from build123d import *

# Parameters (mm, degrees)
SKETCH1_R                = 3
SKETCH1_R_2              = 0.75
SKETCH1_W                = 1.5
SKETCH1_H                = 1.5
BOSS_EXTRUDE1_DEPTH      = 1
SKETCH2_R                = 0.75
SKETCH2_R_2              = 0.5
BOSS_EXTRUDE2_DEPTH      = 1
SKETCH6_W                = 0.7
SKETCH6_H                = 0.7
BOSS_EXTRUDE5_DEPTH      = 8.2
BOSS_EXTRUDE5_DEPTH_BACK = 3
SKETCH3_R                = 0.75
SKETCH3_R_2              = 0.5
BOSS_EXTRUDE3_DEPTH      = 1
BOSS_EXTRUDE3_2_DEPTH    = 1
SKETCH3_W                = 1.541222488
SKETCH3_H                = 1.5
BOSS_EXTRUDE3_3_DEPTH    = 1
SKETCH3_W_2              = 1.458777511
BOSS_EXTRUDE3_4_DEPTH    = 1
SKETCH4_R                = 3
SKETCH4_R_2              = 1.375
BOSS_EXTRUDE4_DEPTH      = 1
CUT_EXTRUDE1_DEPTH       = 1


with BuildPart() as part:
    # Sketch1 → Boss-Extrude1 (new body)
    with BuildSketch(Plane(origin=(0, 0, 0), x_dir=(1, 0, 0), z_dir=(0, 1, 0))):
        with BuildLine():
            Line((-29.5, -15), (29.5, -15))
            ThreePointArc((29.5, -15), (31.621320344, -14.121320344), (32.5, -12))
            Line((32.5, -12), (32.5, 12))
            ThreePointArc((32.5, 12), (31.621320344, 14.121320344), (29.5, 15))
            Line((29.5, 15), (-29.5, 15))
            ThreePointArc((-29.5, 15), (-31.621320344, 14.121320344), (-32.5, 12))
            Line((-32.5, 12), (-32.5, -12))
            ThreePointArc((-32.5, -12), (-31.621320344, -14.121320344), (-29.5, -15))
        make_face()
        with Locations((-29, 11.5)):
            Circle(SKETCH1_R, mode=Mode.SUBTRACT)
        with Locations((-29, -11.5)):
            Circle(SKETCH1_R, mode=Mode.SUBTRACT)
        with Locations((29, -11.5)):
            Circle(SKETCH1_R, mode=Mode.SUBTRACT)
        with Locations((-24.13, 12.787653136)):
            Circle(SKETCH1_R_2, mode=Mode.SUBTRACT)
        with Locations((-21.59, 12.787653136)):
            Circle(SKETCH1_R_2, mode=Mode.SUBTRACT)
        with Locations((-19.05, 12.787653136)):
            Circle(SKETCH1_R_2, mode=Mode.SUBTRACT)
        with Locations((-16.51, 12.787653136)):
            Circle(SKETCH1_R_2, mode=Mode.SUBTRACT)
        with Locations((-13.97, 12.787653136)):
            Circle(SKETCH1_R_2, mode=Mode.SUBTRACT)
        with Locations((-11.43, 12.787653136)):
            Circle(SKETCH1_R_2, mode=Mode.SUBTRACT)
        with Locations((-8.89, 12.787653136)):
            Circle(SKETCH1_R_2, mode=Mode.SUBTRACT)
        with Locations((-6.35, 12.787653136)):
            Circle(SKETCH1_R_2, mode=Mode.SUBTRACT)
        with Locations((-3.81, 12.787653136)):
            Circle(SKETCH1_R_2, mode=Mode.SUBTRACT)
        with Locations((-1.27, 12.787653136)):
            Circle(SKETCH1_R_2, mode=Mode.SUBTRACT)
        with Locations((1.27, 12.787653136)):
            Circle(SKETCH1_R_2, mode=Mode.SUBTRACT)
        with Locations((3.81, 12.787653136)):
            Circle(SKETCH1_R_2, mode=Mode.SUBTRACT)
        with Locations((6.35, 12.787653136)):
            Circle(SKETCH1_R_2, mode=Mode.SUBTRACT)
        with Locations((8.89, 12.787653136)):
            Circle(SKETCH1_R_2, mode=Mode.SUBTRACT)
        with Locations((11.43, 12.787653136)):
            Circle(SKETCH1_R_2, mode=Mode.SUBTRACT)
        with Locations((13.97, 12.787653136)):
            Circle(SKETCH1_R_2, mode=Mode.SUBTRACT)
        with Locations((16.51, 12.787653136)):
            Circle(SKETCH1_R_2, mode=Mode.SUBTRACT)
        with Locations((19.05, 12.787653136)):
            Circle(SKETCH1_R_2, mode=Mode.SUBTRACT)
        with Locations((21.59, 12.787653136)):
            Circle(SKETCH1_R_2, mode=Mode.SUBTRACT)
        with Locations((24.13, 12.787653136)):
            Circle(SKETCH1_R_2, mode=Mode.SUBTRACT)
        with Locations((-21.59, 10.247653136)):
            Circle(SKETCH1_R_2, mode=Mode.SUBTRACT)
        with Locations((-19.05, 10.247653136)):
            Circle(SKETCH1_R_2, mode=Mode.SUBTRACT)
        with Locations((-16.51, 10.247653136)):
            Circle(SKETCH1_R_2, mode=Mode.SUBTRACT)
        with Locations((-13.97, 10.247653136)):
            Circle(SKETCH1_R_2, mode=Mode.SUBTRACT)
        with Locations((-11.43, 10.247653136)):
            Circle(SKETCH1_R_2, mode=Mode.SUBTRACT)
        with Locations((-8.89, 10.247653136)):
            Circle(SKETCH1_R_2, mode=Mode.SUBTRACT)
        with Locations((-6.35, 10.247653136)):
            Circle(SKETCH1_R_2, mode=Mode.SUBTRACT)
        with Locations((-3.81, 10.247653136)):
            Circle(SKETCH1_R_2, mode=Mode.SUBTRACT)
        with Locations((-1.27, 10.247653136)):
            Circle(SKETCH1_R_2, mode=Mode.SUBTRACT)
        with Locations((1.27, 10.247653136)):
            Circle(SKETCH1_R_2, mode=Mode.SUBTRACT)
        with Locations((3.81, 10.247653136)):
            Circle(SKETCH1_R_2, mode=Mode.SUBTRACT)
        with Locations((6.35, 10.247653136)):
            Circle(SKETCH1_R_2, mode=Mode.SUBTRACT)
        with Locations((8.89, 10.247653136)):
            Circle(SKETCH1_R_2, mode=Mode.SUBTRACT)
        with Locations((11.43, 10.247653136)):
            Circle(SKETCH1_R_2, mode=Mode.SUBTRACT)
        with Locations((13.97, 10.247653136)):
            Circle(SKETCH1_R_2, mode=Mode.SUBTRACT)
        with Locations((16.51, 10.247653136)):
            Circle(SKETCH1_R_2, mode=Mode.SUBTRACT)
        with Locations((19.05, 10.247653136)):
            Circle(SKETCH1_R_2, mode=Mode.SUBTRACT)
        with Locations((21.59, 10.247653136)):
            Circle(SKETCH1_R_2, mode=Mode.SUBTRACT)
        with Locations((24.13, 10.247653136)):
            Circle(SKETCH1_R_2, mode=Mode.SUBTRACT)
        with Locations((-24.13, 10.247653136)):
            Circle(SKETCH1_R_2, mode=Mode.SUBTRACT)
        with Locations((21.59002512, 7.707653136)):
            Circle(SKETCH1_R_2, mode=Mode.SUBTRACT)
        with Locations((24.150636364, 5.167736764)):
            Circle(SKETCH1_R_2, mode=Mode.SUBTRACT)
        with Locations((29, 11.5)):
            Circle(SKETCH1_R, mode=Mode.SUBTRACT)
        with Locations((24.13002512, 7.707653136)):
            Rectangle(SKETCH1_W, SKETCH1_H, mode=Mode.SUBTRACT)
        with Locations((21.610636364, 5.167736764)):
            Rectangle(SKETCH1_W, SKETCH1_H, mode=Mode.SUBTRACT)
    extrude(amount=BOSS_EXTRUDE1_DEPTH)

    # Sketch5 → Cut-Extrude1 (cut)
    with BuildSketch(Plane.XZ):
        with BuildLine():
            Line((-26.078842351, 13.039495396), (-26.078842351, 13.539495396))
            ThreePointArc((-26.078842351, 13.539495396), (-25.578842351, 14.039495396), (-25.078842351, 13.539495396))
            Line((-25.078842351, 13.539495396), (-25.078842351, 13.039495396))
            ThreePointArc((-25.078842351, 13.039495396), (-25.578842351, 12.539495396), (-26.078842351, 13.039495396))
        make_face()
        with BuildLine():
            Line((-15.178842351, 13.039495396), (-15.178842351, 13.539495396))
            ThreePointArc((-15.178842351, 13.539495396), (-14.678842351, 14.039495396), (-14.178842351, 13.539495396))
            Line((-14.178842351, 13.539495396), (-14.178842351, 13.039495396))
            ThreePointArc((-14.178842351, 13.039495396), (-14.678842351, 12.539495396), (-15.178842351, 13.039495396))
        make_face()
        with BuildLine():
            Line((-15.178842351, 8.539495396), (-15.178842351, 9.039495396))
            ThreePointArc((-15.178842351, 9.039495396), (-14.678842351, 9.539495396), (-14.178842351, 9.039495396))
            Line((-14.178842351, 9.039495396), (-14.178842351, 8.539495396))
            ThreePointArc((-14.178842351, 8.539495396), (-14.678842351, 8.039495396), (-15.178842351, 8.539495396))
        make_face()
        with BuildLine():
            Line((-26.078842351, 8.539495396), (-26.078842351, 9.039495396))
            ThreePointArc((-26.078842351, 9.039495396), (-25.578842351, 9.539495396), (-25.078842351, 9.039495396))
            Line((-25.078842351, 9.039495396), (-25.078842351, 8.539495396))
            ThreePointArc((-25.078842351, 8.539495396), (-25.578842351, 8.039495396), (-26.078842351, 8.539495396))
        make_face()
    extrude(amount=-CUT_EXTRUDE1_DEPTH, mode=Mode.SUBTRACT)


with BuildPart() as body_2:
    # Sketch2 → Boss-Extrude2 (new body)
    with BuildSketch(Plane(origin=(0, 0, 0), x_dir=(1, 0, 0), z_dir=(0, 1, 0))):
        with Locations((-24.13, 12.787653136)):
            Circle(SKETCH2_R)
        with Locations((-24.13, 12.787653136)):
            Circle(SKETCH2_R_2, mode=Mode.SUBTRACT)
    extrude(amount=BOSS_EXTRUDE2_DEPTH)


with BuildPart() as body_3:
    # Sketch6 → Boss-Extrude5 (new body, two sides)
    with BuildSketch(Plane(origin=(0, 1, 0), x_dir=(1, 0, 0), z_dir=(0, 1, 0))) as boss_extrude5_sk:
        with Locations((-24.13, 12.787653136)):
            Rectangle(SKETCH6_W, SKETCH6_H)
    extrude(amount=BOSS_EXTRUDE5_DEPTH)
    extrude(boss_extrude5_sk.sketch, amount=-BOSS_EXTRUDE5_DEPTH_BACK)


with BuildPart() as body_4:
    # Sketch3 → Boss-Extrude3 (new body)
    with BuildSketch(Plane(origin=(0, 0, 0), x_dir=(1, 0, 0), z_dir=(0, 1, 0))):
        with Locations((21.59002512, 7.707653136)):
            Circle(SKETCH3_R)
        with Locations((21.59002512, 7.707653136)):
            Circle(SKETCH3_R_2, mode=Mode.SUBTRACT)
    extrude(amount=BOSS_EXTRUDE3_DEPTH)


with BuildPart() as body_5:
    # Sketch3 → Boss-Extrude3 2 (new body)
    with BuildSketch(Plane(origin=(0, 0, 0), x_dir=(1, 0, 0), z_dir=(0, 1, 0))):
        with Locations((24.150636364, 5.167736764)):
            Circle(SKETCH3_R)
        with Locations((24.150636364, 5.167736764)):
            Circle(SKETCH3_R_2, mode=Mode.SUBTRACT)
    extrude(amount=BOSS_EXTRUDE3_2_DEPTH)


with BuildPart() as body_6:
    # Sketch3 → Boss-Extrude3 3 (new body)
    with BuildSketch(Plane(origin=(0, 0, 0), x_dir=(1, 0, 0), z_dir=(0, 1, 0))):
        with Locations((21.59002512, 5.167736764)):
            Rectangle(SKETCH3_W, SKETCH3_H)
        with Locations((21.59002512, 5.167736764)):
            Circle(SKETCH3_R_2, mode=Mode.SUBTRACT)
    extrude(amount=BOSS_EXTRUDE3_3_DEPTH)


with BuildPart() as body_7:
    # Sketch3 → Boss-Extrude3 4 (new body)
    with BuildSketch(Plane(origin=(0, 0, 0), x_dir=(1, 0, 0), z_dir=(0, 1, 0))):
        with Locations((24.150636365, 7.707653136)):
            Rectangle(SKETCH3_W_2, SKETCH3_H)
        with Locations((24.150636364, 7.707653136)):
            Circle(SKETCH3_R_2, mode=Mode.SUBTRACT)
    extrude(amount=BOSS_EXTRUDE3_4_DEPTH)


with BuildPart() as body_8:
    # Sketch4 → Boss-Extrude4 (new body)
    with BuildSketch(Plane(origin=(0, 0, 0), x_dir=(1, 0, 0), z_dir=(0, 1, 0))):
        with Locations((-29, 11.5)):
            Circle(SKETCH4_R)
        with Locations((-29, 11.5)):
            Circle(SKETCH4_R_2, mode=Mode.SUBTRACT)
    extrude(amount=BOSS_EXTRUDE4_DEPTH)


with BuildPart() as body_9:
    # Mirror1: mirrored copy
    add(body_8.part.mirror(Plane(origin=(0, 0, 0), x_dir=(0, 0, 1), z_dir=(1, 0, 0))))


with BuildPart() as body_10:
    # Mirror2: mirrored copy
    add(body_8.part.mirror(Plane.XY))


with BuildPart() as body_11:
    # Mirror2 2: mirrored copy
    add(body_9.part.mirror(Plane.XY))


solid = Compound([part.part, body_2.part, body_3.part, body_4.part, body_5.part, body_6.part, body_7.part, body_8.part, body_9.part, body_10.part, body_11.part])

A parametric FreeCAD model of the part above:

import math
import FreeCAD as App
import Part
import Sketcher
Q = App.Units.Quantity

doc = App.newDocument("Part")
body = doc.addObject("PartDesign::Body", "Body")

# Sketch on XZ plane
sketch1 = body.newObject("Sketcher::SketchObject", "Sketch")
sketch1.AttachmentSupport = (doc.getObject("XZ_Plane"), [""])
sketch1.MapMode = "FlatFace"
sketch1.addGeometry(Part.LineSegment(App.Vector(-29.5, 15, 0), App.Vector(29.5, 15, 0)), False)
sketch1.addGeometry(Part.ArcOfCircle(Part.Circle(App.Vector(29.5, 12, 0), App.Vector(0, 0, 1), 3), math.radians(0), math.radians(90)), False)
sketch1.addGeometry(Part.LineSegment(App.Vector(32.5, 12, 0), App.Vector(32.5, -12, 0)), False)
sketch1.addGeometry(Part.ArcOfCircle(Part.Circle(App.Vector(29.5, -12, 0), App.Vector(0, 0, 1), 3), math.radians(-90), math.radians(0)), False)
sketch1.addGeometry(Part.LineSegment(App.Vector(29.5, -15, 0), App.Vector(-29.5, -15, 0)), False)
sketch1.addGeometry(Part.ArcOfCircle(Part.Circle(App.Vector(-29.5, -12, 0), App.Vector(0, 0, 1), 3), math.radians(180), math.radians(270)), False)
sketch1.addGeometry(Part.LineSegment(App.Vector(-32.5, -12, 0), App.Vector(-32.5, 12, 0)), False)
sketch1.addGeometry(Part.ArcOfCircle(Part.Circle(App.Vector(-29.5, 12, 0), App.Vector(0, 0, 1), 3), math.radians(90), math.radians(180)), False)
sketch1.addGeometry(Part.Circle(App.Vector(-29, 11.5, 0), App.Vector(0, 0, 1), 3), False)
sketch1.addGeometry(Part.Circle(App.Vector(29, 11.5, 0), App.Vector(0, 0, 1), 3), False)
sketch1.addGeometry(Part.Circle(App.Vector(-24.1, -10.2, 0), App.Vector(0, 0, 1), 0.8), False)
sketch1.addGeometry(Part.Circle(App.Vector(-21.6, -10.2, 0), App.Vector(0, 0, 1), 0.8), False)
sketch1.addGeometry(Part.Circle(App.Vector(-19.1, -10.2, 0), App.Vector(0, 0, 1), 0.8), False)
sketch1.addGeometry(Part.Circle(App.Vector(-16.5, -10.2, 0), App.Vector(0, 0, 1), 0.8), False)
sketch1.addGeometry(Part.Circle(App.Vector(-29, -11.5, 0), App.Vector(0, 0, 1), 3), False)
sketch1.addGeometry(Part.Circle(App.Vector(-24.1, -12.8, 0), App.Vector(0, 0, 1), 0.8), False)
sketch1.addGeometry(Part.Circle(App.Vector(-21.6, -12.8, 0), App.Vector(0, 0, 1), 0.8), False)
sketch1.addGeometry(Part.Circle(App.Vector(-19.1, -12.8, 0), App.Vector(0, 0, 1), 0.8), False)
sketch1.addGeometry(Part.Circle(App.Vector(-16.5, -12.8, 0), App.Vector(0, 0, 1), 0.8), False)
sketch1.addGeometry(Part.Circle(App.Vector(-14, -10.2, 0), App.Vector(0, 0, 1), 0.8), False)
sketch1.addGeometry(Part.Circle(App.Vector(-11.4, -10.2, 0), App.Vector(0, 0, 1), 0.8), False)
sketch1.addGeometry(Part.Circle(App.Vector(-8.9, -10.2, 0), App.Vector(0, 0, 1), 0.8), False)
sketch1.addGeometry(Part.Circle(App.Vector(-6.3, -10.2, 0), App.Vector(0, 0, 1), 0.8), False)
sketch1.addGeometry(Part.Circle(App.Vector(-3.8, -10.2, 0), App.Vector(0, 0, 1), 0.8), False)
sketch1.addGeometry(Part.Circle(App.Vector(-1.3, -10.2, 0), App.Vector(0, 0, 1), 0.8), False)
sketch1.addGeometry(Part.Circle(App.Vector(-14, -12.8, 0), App.Vector(0, 0, 1), 0.8), False)
sketch1.addGeometry(Part.Circle(App.Vector(-11.4, -12.8, 0), App.Vector(0, 0, 1), 0.8), False)
sketch1.addGeometry(Part.Circle(App.Vector(-8.9, -12.8, 0), App.Vector(0, 0, 1), 0.8), False)
sketch1.addGeometry(Part.Circle(App.Vector(-6.3, -12.8, 0), App.Vector(0, 0, 1), 0.8), False)
sketch1.addGeometry(Part.Circle(App.Vector(-3.8, -12.8, 0), App.Vector(0, 0, 1), 0.8), False)
sketch1.addGeometry(Part.Circle(App.Vector(-1.3, -12.8, 0), App.Vector(0, 0, 1), 0.8), False)
sketch1.addGeometry(Part.LineSegment(App.Vector(22.4, -4.4, 0), App.Vector(20.9, -4.4, 0)), False)
sketch1.addGeometry(Part.LineSegment(App.Vector(20.9, -4.4, 0), App.Vector(20.9, -5.9, 0)), False)
sketch1.addGeometry(Part.LineSegment(App.Vector(20.9, -5.9, 0), App.Vector(22.4, -5.9, 0)), False)
sketch1.addGeometry(Part.LineSegment(App.Vector(22.4, -5.9, 0), App.Vector(22.4, -4.4, 0)), False)
sketch1.addGeometry(Part.Circle(App.Vector(24.2, -5.2, 0), App.Vector(0, 0, 1), 0.8), False)
sketch1.addGeometry(Part.Circle(App.Vector(1.3, -10.2, 0), App.Vector(0, 0, 1), 0.8), False)
sketch1.addGeometry(Part.Circle(App.Vector(3.8, -10.2, 0), App.Vector(0, 0, 1), 0.8), False)
sketch1.addGeometry(Part.Circle(App.Vector(6.3, -10.2, 0), App.Vector(0, 0, 1), 0.8), False)
sketch1.addGeometry(Part.Circle(App.Vector(8.9, -10.2, 0), App.Vector(0, 0, 1), 0.8), False)
sketch1.addGeometry(Part.Circle(App.Vector(11.4, -10.2, 0), App.Vector(0, 0, 1), 0.8), False)
sketch1.addGeometry(Part.Circle(App.Vector(14, -10.2, 0), App.Vector(0, 0, 1), 0.8), False)
sketch1.addGeometry(Part.Circle(App.Vector(1.3, -12.8, 0), App.Vector(0, 0, 1), 0.8), False)
sketch1.addGeometry(Part.Circle(App.Vector(3.8, -12.8, 0), App.Vector(0, 0, 1), 0.8), False)
sketch1.addGeometry(Part.Circle(App.Vector(6.3, -12.8, 0), App.Vector(0, 0, 1), 0.8), False)
sketch1.addGeometry(Part.Circle(App.Vector(8.9, -12.8, 0), App.Vector(0, 0, 1), 0.8), False)
sketch1.addGeometry(Part.Circle(App.Vector(11.4, -12.8, 0), App.Vector(0, 0, 1), 0.8), False)
sketch1.addGeometry(Part.Circle(App.Vector(14, -12.8, 0), App.Vector(0, 0, 1), 0.8), False)
sketch1.addGeometry(Part.Circle(App.Vector(21.6, -7.7, 0), App.Vector(0, 0, 1), 0.8), False)
sketch1.addGeometry(Part.Circle(App.Vector(16.5, -10.2, 0), App.Vector(0, 0, 1), 0.8), False)
sketch1.addGeometry(Part.Circle(App.Vector(19.1, -10.2, 0), App.Vector(0, 0, 1), 0.8), False)
sketch1.addGeometry(Part.Circle(App.Vector(21.6, -10.2, 0), App.Vector(0, 0, 1), 0.8), False)
sketch1.addGeometry(Part.LineSegment(App.Vector(24.9, -7, 0), App.Vector(23.4, -7, 0)), False)
sketch1.addGeometry(Part.LineSegment(App.Vector(23.4, -7, 0), App.Vector(23.4, -8.5, 0)), False)
sketch1.addGeometry(Part.LineSegment(App.Vector(23.4, -8.5, 0), App.Vector(24.9, -8.5, 0)), False)
sketch1.addGeometry(Part.LineSegment(App.Vector(24.9, -8.5, 0), App.Vector(24.9, -7, 0)), False)
sketch1.addGeometry(Part.Circle(App.Vector(24.1, -10.2, 0), App.Vector(0, 0, 1), 0.8), False)
sketch1.addGeometry(Part.Circle(App.Vector(16.5, -12.8, 0), App.Vector(0, 0, 1), 0.8), False)
sketch1.addGeometry(Part.Circle(App.Vector(19.1, -12.8, 0), App.Vector(0, 0, 1), 0.8), False)
sketch1.addGeometry(Part.Circle(App.Vector(21.6, -12.8, 0), App.Vector(0, 0, 1), 0.8), False)
sketch1.addGeometry(Part.Circle(App.Vector(29, -11.5, 0), App.Vector(0, 0, 1), 3), False)
sketch1.addGeometry(Part.Circle(App.Vector(24.1, -12.8, 0), App.Vector(0, 0, 1), 0.8), False)
sketch1.addConstraint(Sketcher.Constraint("Tangent", 0, 2, 1, 2))
sketch1.addConstraint(Sketcher.Constraint("Tangent", 1, 1, 2, 1))
sketch1.addConstraint(Sketcher.Constraint("Tangent", 2, 2, 3, 2))
sketch1.addConstraint(Sketcher.Constraint("Tangent", 3, 1, 4, 1))
sketch1.addConstraint(Sketcher.Constraint("Tangent", 4, 2, 5, 2))
sketch1.addConstraint(Sketcher.Constraint("Tangent", 5, 1, 6, 1))
sketch1.addConstraint(Sketcher.Constraint("Tangent", 6, 2, 7, 2))
sketch1.addConstraint(Sketcher.Constraint("Tangent", 7, 1, 0, 1))
sketch1.addConstraint(Sketcher.Constraint("Coincident", 31, 2, 32, 1))
sketch1.addConstraint(Sketcher.Constraint("Coincident", 32, 2, 33, 1))
sketch1.addConstraint(Sketcher.Constraint("Coincident", 33, 2, 34, 1))
sketch1.addConstraint(Sketcher.Constraint("Coincident", 34, 2, 31, 1))
sketch1.addConstraint(Sketcher.Constraint("Coincident", 52, 2, 53, 1))
sketch1.addConstraint(Sketcher.Constraint("Coincident", 53, 2, 54, 1))
sketch1.addConstraint(Sketcher.Constraint("Coincident", 54, 2, 55, 1))
sketch1.addConstraint(Sketcher.Constraint("Coincident", 55, 2, 52, 1))
sketch1.addConstraint(Sketcher.Constraint("Horizontal", 0))
sketch1.addConstraint(Sketcher.Constraint("Vertical", 2))
sketch1.addConstraint(Sketcher.Constraint("Horizontal", 4))
sketch1.addConstraint(Sketcher.Constraint("Vertical", 6))
sketch1.addConstraint(Sketcher.Constraint("Horizontal", 31))
sketch1.addConstraint(Sketcher.Constraint("Vertical", 32))
sketch1.addConstraint(Sketcher.Constraint("Horizontal", 33))
sketch1.addConstraint(Sketcher.Constraint("Vertical", 34))
sketch1.addConstraint(Sketcher.Constraint("Horizontal", 52))
sketch1.addConstraint(Sketcher.Constraint("Vertical", 53))
sketch1.addConstraint(Sketcher.Constraint("Horizontal", 54))
sketch1.addConstraint(Sketcher.Constraint("Vertical", 55))
sketch1.addConstraint(Sketcher.Constraint("Equal", 1, 3))
sketch1.addConstraint(Sketcher.Constraint("Equal", 3, 5))
sketch1.addConstraint(Sketcher.Constraint("Equal", 5, 7))
sketch1.addConstraint(Sketcher.Constraint("Equal", 7, 8))
sketch1.addConstraint(Sketcher.Constraint("Equal", 8, 9))
sketch1.addConstraint(Sketcher.Constraint("Equal", 10, 11))
sketch1.addConstraint(Sketcher.Constraint("Equal", 11, 12))
sketch1.addConstraint(Sketcher.Constraint("Equal", 12, 13))
sketch1.addConstraint(Sketcher.Constraint("Equal", 9, 14))
sketch1.addConstraint(Sketcher.Constraint("Equal", 13, 15))
sketch1.addConstraint(Sketcher.Constraint("Equal", 15, 16))
sketch1.addConstraint(Sketcher.Constraint("Equal", 16, 17))
sketch1.addConstraint(Sketcher.Constraint("Equal", 17, 18))
sketch1.addConstraint(Sketcher.Constraint("Equal", 18, 19))
sketch1.addConstraint(Sketcher.Constraint("Equal", 19, 20))
sketch1.addConstraint(Sketcher.Constraint("Equal", 20, 21))
sketch1.addConstraint(Sketcher.Constraint("Equal", 21, 22))
sketch1.addConstraint(Sketcher.Constraint("Equal", 22, 23))
sketch1.addConstraint(Sketcher.Constraint("Equal", 23, 24))
sketch1.addConstraint(Sketcher.Constraint("Equal", 24, 25))
sketch1.addConstraint(Sketcher.Constraint("Equal", 25, 26))
sketch1.addConstraint(Sketcher.Constraint("Equal", 26, 27))
sketch1.addConstraint(Sketcher.Constraint("Equal", 27, 28))
sketch1.addConstraint(Sketcher.Constraint("Equal", 28, 29))
sketch1.addConstraint(Sketcher.Constraint("Equal", 29, 30))
sketch1.addConstraint(Sketcher.Constraint("Equal", 30, 35))
sketch1.addConstraint(Sketcher.Constraint("Equal", 35, 36))
sketch1.addConstraint(Sketcher.Constraint("Equal", 36, 37))
sketch1.addConstraint(Sketcher.Constraint("Equal", 37, 38))
sketch1.addConstraint(Sketcher.Constraint("Equal", 38, 39))
sketch1.addConstraint(Sketcher.Constraint("Equal", 39, 40))
sketch1.addConstraint(Sketcher.Constraint("Equal", 40, 41))
sketch1.addConstraint(Sketcher.Constraint("Equal", 41, 42))
sketch1.addConstraint(Sketcher.Constraint("Equal", 42, 43))
sketch1.addConstraint(Sketcher.Constraint("Equal", 43, 44))
sketch1.addConstraint(Sketcher.Constraint("Equal", 44, 45))
sketch1.addConstraint(Sketcher.Constraint("Equal", 45, 46))
sketch1.addConstraint(Sketcher.Constraint("Equal", 46, 47))
sketch1.addConstraint(Sketcher.Constraint("Equal", 47, 48))
sketch1.addConstraint(Sketcher.Constraint("Equal", 48, 49))
sketch1.addConstraint(Sketcher.Constraint("Equal", 49, 50))
sketch1.addConstraint(Sketcher.Constraint("Equal", 50, 51))
sketch1.addConstraint(Sketcher.Constraint("Equal", 51, 56))
sketch1.addConstraint(Sketcher.Constraint("Equal", 56, 57))
sketch1.addConstraint(Sketcher.Constraint("Equal", 57, 58))
sketch1.addConstraint(Sketcher.Constraint("Equal", 58, 59))
sketch1.addConstraint(Sketcher.Constraint("Equal", 14, 60))
sketch1.addConstraint(Sketcher.Constraint("Equal", 59, 61))
sketch1.addConstraint(Sketcher.Constraint("Symmetric", 1, 3, 5, 3, -1, 1))
sketch1.addConstraint(Sketcher.Constraint("Symmetric", 9, 3, 14, 3, -1, 1))
sketch1.addConstraint(Sketcher.Constraint("Symmetric", 8, 3, 60, 3, -1, 1))
sketch1.addConstraint(Sketcher.Constraint("Symmetric", 8, 3, 9, 3, -2))
sketch1.addConstraint(Sketcher.Constraint("Symmetric", 24, 3, 36, 3, -2))
sketch1.addConstraint(Sketcher.Constraint("Symmetric", 23, 3, 37, 3, -2))
sketch1.addConstraint(Sketcher.Constraint("Symmetric", 22, 3, 38, 3, -2))
sketch1.addConstraint(Sketcher.Constraint("Symmetric", 21, 3, 39, 3, -2))
sketch1.addConstraint(Sketcher.Constraint("Symmetric", 20, 3, 40, 3, -2))
sketch1.addConstraint(Sketcher.Constraint("Symmetric", 19, 3, 41, 3, -2))
sketch1.addConstraint(Sketcher.Constraint("Symmetric", 30, 3, 42, 3, -2))
sketch1.addConstraint(Sketcher.Constraint("Symmetric", 29, 3, 43, 3, -2))
sketch1.addConstraint(Sketcher.Constraint("Symmetric", 28, 3, 44, 3, -2))
sketch1.addConstraint(Sketcher.Constraint("Symmetric", 27, 3, 45, 3, -2))
sketch1.addConstraint(Sketcher.Constraint("Symmetric", 26, 3, 46, 3, -2))
sketch1.addConstraint(Sketcher.Constraint("Symmetric", 25, 3, 47, 3, -2))
sketch1.addConstraint(Sketcher.Constraint("Symmetric", 13, 3, 49, 3, -2))
sketch1.addConstraint(Sketcher.Constraint("Symmetric", 12, 3, 50, 3, -2))
sketch1.addConstraint(Sketcher.Constraint("Symmetric", 11, 3, 51, 3, -2))
sketch1.addConstraint(Sketcher.Constraint("Symmetric", 10, 3, 56, 3, -2))
sketch1.addConstraint(Sketcher.Constraint("Symmetric", 18, 3, 57, 3, -2))
sketch1.addConstraint(Sketcher.Constraint("Symmetric", 17, 3, 58, 3, -2))
sketch1.addConstraint(Sketcher.Constraint("Symmetric", 16, 3, 59, 3, -2))
sketch1.addConstraint(Sketcher.Constraint("Symmetric", 15, 3, 61, 3, -2))
sketch1.addConstraint(Sketcher.Constraint("Horizontal", 10, 3, 11, 3))
sketch1.addConstraint(Sketcher.Constraint("Horizontal", 11, 3, 12, 3))
sketch1.addConstraint(Sketcher.Constraint("Horizontal", 12, 3, 13, 3))
sketch1.addConstraint(Sketcher.Constraint("Horizontal", 15, 3, 16, 3))
sketch1.addConstraint(Sketcher.Constraint("Horizontal", 16, 3, 17, 3))
sketch1.addConstraint(Sketcher.Constraint("Horizontal", 17, 3, 18, 3))
sketch1.addConstraint(Sketcher.Constraint("Horizontal", 13, 3, 19, 3))
sketch1.addConstraint(Sketcher.Constraint("Horizontal", 19, 3, 20, 3))
sketch1.addConstraint(Sketcher.Constraint("Horizontal", 20, 3, 21, 3))
sketch1.addConstraint(Sketcher.Constraint("Horizontal", 21, 3, 22, 3))
sketch1.addConstraint(Sketcher.Constraint("Horizontal", 22, 3, 23, 3))
sketch1.addConstraint(Sketcher.Constraint("Horizontal", 23, 3, 24, 3))
sketch1.addConstraint(Sketcher.Constraint("Horizontal", 18, 3, 25, 3))
sketch1.addConstraint(Sketcher.Constraint("Horizontal", 25, 3, 26, 3))
sketch1.addConstraint(Sketcher.Constraint("Horizontal", 26, 3, 27, 3))
sketch1.addConstraint(Sketcher.Constraint("Horizontal", 27, 3, 28, 3))
sketch1.addConstraint(Sketcher.Constraint("Horizontal", 28, 3, 29, 3))
sketch1.addConstraint(Sketcher.Constraint("Horizontal", 29, 3, 30, 3))
sketch1.addConstraint(Sketcher.Constraint("Vertical", 10, 3, 15, 3))
sketch1.addConstraint(Sketcher.Constraint("Vertical", 11, 3, 16, 3))
sketch1.addConstraint(Sketcher.Constraint("Vertical", 12, 3, 17, 3))
sketch1.addConstraint(Sketcher.Constraint("Vertical", 13, 3, 18, 3))
sketch1.addConstraint(Sketcher.Constraint("Vertical", 19, 3, 25, 3))
sketch1.addConstraint(Sketcher.Constraint("Vertical", 20, 3, 26, 3))
sketch1.addConstraint(Sketcher.Constraint("Vertical", 21, 3, 27, 3))
sketch1.addConstraint(Sketcher.Constraint("Vertical", 22, 3, 28, 3))
sketch1.addConstraint(Sketcher.Constraint("Vertical", 23, 3, 29, 3))
sketch1.addConstraint(Sketcher.Constraint("Vertical", 24, 3, 30, 3))
sketch1.addConstraint(Sketcher.Constraint("Equal", 33, 52))
sketch1.addConstraint(Sketcher.Constraint("Equal", 54, 32))
sketch1.addConstraint(Sketcher.Constraint("Equal", 34, 53))
sketch1.addConstraint(Sketcher.Constraint("Diameter", 8, Q("6 mm")))
sketch1.addConstraint(Sketcher.Constraint("Diameter", 10, Q("1.5 mm")))
sketch1.addConstraint(Sketcher.Constraint("DistanceX", 0, 1, 0, 2, Q("59 mm")))
sketch1.addConstraint(Sketcher.Constraint("DistanceY", 2, 2, 2, 1, Q("24 mm")))
sketch1.addConstraint(Sketcher.Constraint("DistanceX", 31, 2, 31, 1, Q("1.5 mm")))
sketch1.addConstraint(Sketcher.Constraint("DistanceX", 8, 3, -1, 1, Q("29 mm")))
sketch1.addConstraint(Sketcher.Constraint("DistanceY", -1, 1, 8, 3, Q("11.5 mm")))
sketch1.addConstraint(Sketcher.Constraint("DistanceX", 10, 3, -1, 1, Q("24.13 mm")))
sketch1.addConstraint(Sketcher.Constraint("DistanceX", 11, 3, -1, 1, Q("21.59 mm")))
sketch1.addConstraint(Sketcher.Constraint("DistanceX", 12, 3, -1, 1, Q("19.05 mm")))
sketch1.addConstraint(Sketcher.Constraint("DistanceX", 13, 3, -1, 1, Q("16.51 mm")))
sketch1.addConstraint(Sketcher.Constraint("DistanceX", 19, 3, -1, 1, Q("13.97 mm")))
sketch1.addConstraint(Sketcher.Constraint("DistanceX", 20, 3, -1, 1, Q("11.43 mm")))
sketch1.addConstraint(Sketcher.Constraint("DistanceX", 21, 3, -1, 1, Q("8.89 mm")))
sketch1.addConstraint(Sketcher.Constraint("DistanceX", 22, 3, -1, 1, Q("6.35 mm")))
sketch1.addConstraint(Sketcher.Constraint("DistanceX", 23, 3, -1, 1, Q("3.81 mm")))
sketch1.addConstraint(Sketcher.Constraint("DistanceX", 24, 3, -1, 1, Q("1.27 mm")))
sketch1.addConstraint(Sketcher.Constraint("DistanceY", 10, 3, -1, 1, Q("10.247653 mm")))
sketch1.addConstraint(Sketcher.Constraint("DistanceY", 15, 3, -1, 1, Q("12.787653 mm")))
sketch1.addConstraint(Sketcher.Constraint("DistanceX", -1, 1, 35, 3, Q("24.150636 mm")))
sketch1.addConstraint(Sketcher.Constraint("DistanceY", 35, 3, -1, 1, Q("5.167737 mm")))
sketch1.addConstraint(Sketcher.Constraint("DistanceX", -1, 1, 48, 3, Q("21.590025 mm")))
sketch1.addConstraint(Sketcher.Constraint("DistanceY", 48, 3, -1, 1, Q("7.707653 mm")))
sketch1.addConstraint(Sketcher.Constraint("DistanceX", -1, 1, 31, 2, Q("20.860636 mm")))
sketch1.addConstraint(Sketcher.Constraint("DistanceY", 31, 2, -1, 1, Q("4.417737 mm")))
sketch1.addConstraint(Sketcher.Constraint("DistanceX", -1, 1, 52, 2, Q("23.380025 mm")))
sketch1.addConstraint(Sketcher.Constraint("DistanceY", 52, 2, -1, 1, Q("6.957653 mm")))
pad1 = body.newObject("PartDesign::Pad", "Pad")
pad1.Profile = sketch1
pad1.Length = 1
pad1.Reversed = True

# Sketch on XZ plane
sketch2 = body.newObject("Sketcher::SketchObject", "Sketch001")
sketch2.AttachmentSupport = (doc.getObject("XZ_Plane"), [""])
sketch2.MapMode = "FlatFace"
sketch2.addGeometry(Part.LineSegment(App.Vector(-26.1, 13.5, 0), App.Vector(-26.1, 13, 0)), False)
sketch2.addGeometry(Part.ArcOfCircle(Part.Circle(App.Vector(-25.6, 13, 0), App.Vector(0, 0, 1), 0.5), math.radians(180), math.radians(360)), False)
sketch2.addGeometry(Part.LineSegment(App.Vector(-25.1, 13, 0), App.Vector(-25.1, 13.5, 0)), False)
sketch2.addGeometry(Part.ArcOfCircle(Part.Circle(App.Vector(-25.6, 13.5, 0), App.Vector(0, 0, 1), 0.5), math.radians(0), math.radians(180)), False)
sketch2.addGeometry(Part.LineSegment(App.Vector(-15.2, 13.5, 0), App.Vector(-15.2, 13, 0)), False)
sketch2.addGeometry(Part.ArcOfCircle(Part.Circle(App.Vector(-14.7, 13, 0), App.Vector(0, 0, 1), 0.5), math.radians(180), math.radians(360)), False)
sketch2.addGeometry(Part.LineSegment(App.Vector(-14.2, 13, 0), App.Vector(-14.2, 13.5, 0)), False)
sketch2.addGeometry(Part.ArcOfCircle(Part.Circle(App.Vector(-14.7, 13.5, 0), App.Vector(0, 0, 1), 0.5), math.radians(0), math.radians(180)), False)
sketch2.addGeometry(Part.LineSegment(App.Vector(-15.2, 9, 0), App.Vector(-15.2, 8.5, 0)), False)
sketch2.addGeometry(Part.ArcOfCircle(Part.Circle(App.Vector(-14.7, 8.5, 0), App.Vector(0, 0, 1), 0.5), math.radians(180), math.radians(360)), False)
sketch2.addGeometry(Part.LineSegment(App.Vector(-14.2, 8.5, 0), App.Vector(-14.2, 9, 0)), False)
sketch2.addGeometry(Part.ArcOfCircle(Part.Circle(App.Vector(-14.7, 9, 0), App.Vector(0, 0, 1), 0.5), math.radians(0), math.radians(180)), False)
sketch2.addGeometry(Part.LineSegment(App.Vector(-26.1, 9, 0), App.Vector(-26.1, 8.5, 0)), False)
sketch2.addGeometry(Part.ArcOfCircle(Part.Circle(App.Vector(-25.6, 8.5, 0), App.Vector(0, 0, 1), 0.5), math.radians(180), math.radians(360)), False)
sketch2.addGeometry(Part.LineSegment(App.Vector(-25.1, 8.5, 0), App.Vector(-25.1, 9, 0)), False)
sketch2.addGeometry(Part.ArcOfCircle(Part.Circle(App.Vector(-25.6, 9, 0), App.Vector(0, 0, 1), 0.5), math.radians(0), math.radians(180)), False)
sketch2.addConstraint(Sketcher.Constraint("Tangent", 0, 2, 1, 1))
sketch2.addConstraint(Sketcher.Constraint("Tangent", 1, 2, 2, 1))
sketch2.addConstraint(Sketcher.Constraint("Tangent", 2, 2, 3, 1))
sketch2.addConstraint(Sketcher.Constraint("Tangent", 3, 2, 0, 1))
sketch2.addConstraint(Sketcher.Constraint("Tangent", 4, 2, 5, 1))
sketch2.addConstraint(Sketcher.Constraint("Tangent", 5, 2, 6, 1))
sketch2.addConstraint(Sketcher.Constraint("Tangent", 6, 2, 7, 1))
sketch2.addConstraint(Sketcher.Constraint("Tangent", 7, 2, 4, 1))
sketch2.addConstraint(Sketcher.Constraint("Tangent", 8, 2, 9, 1))
sketch2.addConstraint(Sketcher.Constraint("Tangent", 9, 2, 10, 1))
sketch2.addConstraint(Sketcher.Constraint("Tangent", 10, 2, 11, 1))
sketch2.addConstraint(Sketcher.Constraint("Tangent", 11, 2, 8, 1))
sketch2.addConstraint(Sketcher.Constraint("Tangent", 12, 2, 13, 1))
sketch2.addConstraint(Sketcher.Constraint("Tangent", 13, 2, 14, 1))
sketch2.addConstraint(Sketcher.Constraint("Tangent", 14, 2, 15, 1))
sketch2.addConstraint(Sketcher.Constraint("Tangent", 15, 2, 12, 1))
sketch2.addConstraint(Sketcher.Constraint("Vertical", 0))
sketch2.addConstraint(Sketcher.Constraint("Vertical", 2))
sketch2.addConstraint(Sketcher.Constraint("Vertical", 4))
sketch2.addConstraint(Sketcher.Constraint("Vertical", 6))
sketch2.addConstraint(Sketcher.Constraint("Vertical", 8))
sketch2.addConstraint(Sketcher.Constraint("Vertical", 10))
sketch2.addConstraint(Sketcher.Constraint("Vertical", 12))
sketch2.addConstraint(Sketcher.Constraint("Vertical", 14))
sketch2.addConstraint(Sketcher.Constraint("Equal", 3, 5))
sketch2.addConstraint(Sketcher.Constraint("Equal", 7, 9))
sketch2.addConstraint(Sketcher.Constraint("Equal", 11, 13))
sketch2.addConstraint(Sketcher.Constraint("Horizontal", 1, 3, 5, 3))
sketch2.addConstraint(Sketcher.Constraint("Horizontal", 3, 3, 7, 3))
sketch2.addConstraint(Sketcher.Constraint("Horizontal", 9, 3, 13, 3))
sketch2.addConstraint(Sketcher.Constraint("Horizontal", 11, 3, 15, 3))
sketch2.addConstraint(Sketcher.Constraint("Vertical", 7, 3, 9, 3))
sketch2.addConstraint(Sketcher.Constraint("Vertical", 3, 3, 13, 3))
sketch2.addConstraint(Sketcher.Constraint("Equal", 6, 8))
sketch2.addConstraint(Sketcher.Constraint("Radius", 1, Q("0.5 mm")))
sketch2.addConstraint(Sketcher.Constraint("DistanceY", 0, 2, 0, 1, Q("0.5 mm")))
sketch2.addConstraint(Sketcher.Constraint("DistanceY", 9, 3, 7, 3, Q("5 mm")))
sketch2.addConstraint(Sketcher.Constraint("DistanceX", 1, 3, 5, 3, Q("10.9 mm")))
sketch2.addConstraint(Sketcher.Constraint("DistanceX", 1, 3, -1, 1, Q("25.578842 mm")))
sketch2.addConstraint(Sketcher.Constraint("DistanceY", -1, 1, 1, 3, Q("13.039495 mm")))
pocket1 = body.newObject("PartDesign::Pocket", "Pocket")
pocket1.Profile = sketch2
pocket1.Length = 1
body2 = doc.addObject("PartDesign::Body", "Body001")

# Sketch on XZ plane
sketch3 = body2.newObject("Sketcher::SketchObject", "Sketch002")
sketch3.AttachmentSupport = (doc.getObject("XZ_Plane001"), [""])
sketch3.MapMode = "FlatFace"
sketch3.addGeometry(Part.Circle(App.Vector(-24.1, -12.8, 0), App.Vector(0, 0, 1), 0.8), False)
sketch3.addGeometry(Part.Circle(App.Vector(-24.1, -12.8, 0), App.Vector(0, 0, 1), 0.5), False)
sketch3.addConstraint(Sketcher.Constraint("Coincident", 1, 3, 0, 3))
sketch3.addConstraint(Sketcher.Constraint("Diameter", 1, Q("1 mm")))
sketch3.addConstraint(Sketcher.Constraint("Diameter", 0, Q("1.5 mm")))
sketch3.addConstraint(Sketcher.Constraint("DistanceX", 0, 3, -1, 1, Q("24.13 mm")))
sketch3.addConstraint(Sketcher.Constraint("DistanceY", 0, 3, -1, 1, Q("12.787653 mm")))
pad2 = body2.newObject("PartDesign::Pad", "Pad001")
pad2.Profile = sketch3
pad2.Length = 1
pad2.Reversed = True
body3 = doc.addObject("PartDesign::Body", "Body002")

# Sketch on XZ plane
sketch4 = body3.newObject("Sketcher::SketchObject", "Sketch003")
sketch4.AttachmentSupport = (doc.getObject("XZ_Plane002"), [""])
sketch4.MapMode = "FlatFace"
sketch4.AttachmentOffset = App.Placement(App.Vector(0, 0, -1), App.Rotation())
sketch4.addGeometry(Part.LineSegment(App.Vector(-24.5, -13.1, 0), App.Vector(-24.5, -12.4, 0)), False)
sketch4.addGeometry(Part.LineSegment(App.Vector(-24.5, -12.4, 0), App.Vector(-23.8, -12.4, 0)), False)
sketch4.addGeometry(Part.LineSegment(App.Vector(-23.8, -12.4, 0), App.Vector(-23.8, -13.1, 0)), False)
sketch4.addGeometry(Part.LineSegment(App.Vector(-23.8, -13.1, 0), App.Vector(-24.5, -13.1, 0)), False)
sketch4.addConstraint(Sketcher.Constraint("Coincident", 0, 2, 1, 1))
sketch4.addConstraint(Sketcher.Constraint("Coincident", 1, 2, 2, 1))
sketch4.addConstraint(Sketcher.Constraint("Coincident", 2, 2, 3, 1))
sketch4.addConstraint(Sketcher.Constraint("Coincident", 3, 2, 0, 1))
sketch4.addConstraint(Sketcher.Constraint("Vertical", 0))
sketch4.addConstraint(Sketcher.Constraint("Horizontal", 1))
sketch4.addConstraint(Sketcher.Constraint("Vertical", 2))
sketch4.addConstraint(Sketcher.Constraint("Horizontal", 3))
sketch4.addConstraint(Sketcher.Constraint("Equal", 3, 0))
sketch4.addConstraint(Sketcher.Constraint("DistanceX", 1, 1, 1, 2, Q("0.7 mm")))
sketch4.addConstraint(Sketcher.Constraint("DistanceX", 0, 2, -1, 1, Q("24.48 mm")))
sketch4.addConstraint(Sketcher.Constraint("DistanceY", 0, 2, -1, 1, Q("12.437653 mm")))
pad3 = body3.newObject("PartDesign::Pad", "Pad002")
pad3.Profile = sketch4
pad3.Type = "TwoLengths"
pad3.Length = 8.2
pad3.Length2 = 3
pad3.Reversed = True
body4 = doc.addObject("PartDesign::Body", "Body003")

# Sketch on XZ plane
sketch5 = body4.newObject("Sketcher::SketchObject", "Sketch004")
sketch5.AttachmentSupport = (doc.getObject("XZ_Plane003"), [""])
sketch5.MapMode = "FlatFace"
sketch5.addGeometry(Part.Circle(App.Vector(21.6, -7.7, 0), App.Vector(0, 0, 1), 0.8), False)
sketch5.addGeometry(Part.Circle(App.Vector(21.6, -7.7, 0), App.Vector(0, 0, 1), 0.5), False)
sketch5.addConstraint(Sketcher.Constraint("Coincident", 1, 3, 0, 3))
sketch5.addConstraint(Sketcher.Constraint("Diameter", 1, Q("1 mm")))
sketch5.addConstraint(Sketcher.Constraint("Diameter", 0, Q("1.5 mm")))
sketch5.addConstraint(Sketcher.Constraint("DistanceX", -1, 1, 0, 3, Q("21.590025 mm")))
sketch5.addConstraint(Sketcher.Constraint("DistanceY", 0, 3, -1, 1, Q("7.707653 mm")))
pad4 = body4.newObject("PartDesign::Pad", "Pad003")
pad4.Profile = sketch5
pad4.Length = 1
pad4.Reversed = True
body5 = doc.addObject("PartDesign::Body", "Body004")

# Sketch on XZ plane
sketch6 = body5.newObject("Sketcher::SketchObject", "Sketch005")
sketch6.AttachmentSupport = (doc.getObject("XZ_Plane004"), [""])
sketch6.MapMode = "FlatFace"
sketch6.addGeometry(Part.Circle(App.Vector(24.2, -5.2, 0), App.Vector(0, 0, 1), 0.8), False)
sketch6.addGeometry(Part.Circle(App.Vector(24.2, -5.2, 0), App.Vector(0, 0, 1), 0.5), False)
sketch6.addConstraint(Sketcher.Constraint("Coincident", 1, 3, 0, 3))
sketch6.addConstraint(Sketcher.Constraint("Diameter", 1, Q("1 mm")))
sketch6.addConstraint(Sketcher.Constraint("Diameter", 0, Q("1.5 mm")))
sketch6.addConstraint(Sketcher.Constraint("DistanceX", -1, 1, 0, 3, Q("24.150636 mm")))
sketch6.addConstraint(Sketcher.Constraint("DistanceY", 0, 3, -1, 1, Q("5.167737 mm")))
pad5 = body5.newObject("PartDesign::Pad", "Pad004")
pad5.Profile = sketch6
pad5.Length = 1
pad5.Reversed = True
body6 = doc.addObject("PartDesign::Body", "Body005")

# Sketch on XZ plane
sketch7 = body6.newObject("Sketcher::SketchObject", "Sketch006")
sketch7.AttachmentSupport = (doc.getObject("XZ_Plane005"), [""])
sketch7.MapMode = "FlatFace"
sketch7.addGeometry(Part.LineSegment(App.Vector(20.8, -5.9, 0), App.Vector(20.8, -4.4, 0)), False)
sketch7.addGeometry(Part.LineSegment(App.Vector(20.8, -4.4, 0), App.Vector(22.4, -4.4, 0)), False)
sketch7.addGeometry(Part.LineSegment(App.Vector(22.4, -4.4, 0), App.Vector(22.4, -5.9, 0)), False)
sketch7.addGeometry(Part.LineSegment(App.Vector(22.4, -5.9, 0), App.Vector(20.8, -5.9, 0)), False)
sketch7.addGeometry(Part.Circle(App.Vector(21.6, -5.2, 0), App.Vector(0, 0, 1), 0.5), False)
sketch7.addConstraint(Sketcher.Constraint("Coincident", 0, 2, 1, 1))
sketch7.addConstraint(Sketcher.Constraint("Coincident", 1, 2, 2, 1))
sketch7.addConstraint(Sketcher.Constraint("Coincident", 2, 2, 3, 1))
sketch7.addConstraint(Sketcher.Constraint("Coincident", 3, 2, 0, 1))
sketch7.addConstraint(Sketcher.Constraint("Vertical", 0))
sketch7.addConstraint(Sketcher.Constraint("Horizontal", 1))
sketch7.addConstraint(Sketcher.Constraint("Vertical", 2))
sketch7.addConstraint(Sketcher.Constraint("Horizontal", 3))
sketch7.addConstraint(Sketcher.Constraint("Diameter", 4, Q("1 mm")))
sketch7.addConstraint(Sketcher.Constraint("DistanceY", 0, 1, 0, 2, Q("1.5 mm")))
sketch7.addConstraint(Sketcher.Constraint("DistanceY", 4, 3, 0, 2, Q("0.75 mm")))
sketch7.addConstraint(Sketcher.Constraint("DistanceX", 1, 1, 1, 2, Q("1.541222 mm")))
sketch7.addConstraint(Sketcher.Constraint("DistanceX", 0, 2, 4, 3, Q("0.770611 mm")))
sketch7.addConstraint(Sketcher.Constraint("DistanceX", -1, 1, 4, 3, Q("21.590025 mm")))
sketch7.addConstraint(Sketcher.Constraint("DistanceY", 4, 3, -1, 1, Q("5.167737 mm")))
pad6 = body6.newObject("PartDesign::Pad", "Pad005")
pad6.Profile = sketch7
pad6.Length = 1
pad6.Reversed = True
body7 = doc.addObject("PartDesign::Body", "Body006")

# Sketch on XZ plane
sketch8 = body7.newObject("Sketcher::SketchObject", "Sketch007")
sketch8.AttachmentSupport = (doc.getObject("XZ_Plane006"), [""])
sketch8.MapMode = "FlatFace"
sketch8.addGeometry(Part.LineSegment(App.Vector(23.4, -8.5, 0), App.Vector(23.4, -7, 0)), False)
sketch8.addGeometry(Part.LineSegment(App.Vector(23.4, -7, 0), App.Vector(24.9, -7, 0)), False)
sketch8.addGeometry(Part.LineSegment(App.Vector(24.9, -7, 0), App.Vector(24.9, -8.5, 0)), False)
sketch8.addGeometry(Part.LineSegment(App.Vector(24.9, -8.5, 0), App.Vector(23.4, -8.5, 0)), False)
sketch8.addGeometry(Part.Circle(App.Vector(24.2, -7.7, 0), App.Vector(0, 0, 1), 0.5), False)
sketch8.addConstraint(Sketcher.Constraint("Coincident", 0, 2, 1, 1))
sketch8.addConstraint(Sketcher.Constraint("Coincident", 1, 2, 2, 1))
sketch8.addConstraint(Sketcher.Constraint("Coincident", 2, 2, 3, 1))
sketch8.addConstraint(Sketcher.Constraint("Coincident", 3, 2, 0, 1))
sketch8.addConstraint(Sketcher.Constraint("Vertical", 0))
sketch8.addConstraint(Sketcher.Constraint("Horizontal", 1))
sketch8.addConstraint(Sketcher.Constraint("Vertical", 2))
sketch8.addConstraint(Sketcher.Constraint("Horizontal", 3))
sketch8.addConstraint(Sketcher.Constraint("Diameter", 4, Q("1 mm")))
sketch8.addConstraint(Sketcher.Constraint("DistanceY", 0, 1, 0, 2, Q("1.5 mm")))
sketch8.addConstraint(Sketcher.Constraint("DistanceY", 4, 3, 0, 2, Q("0.75 mm")))
sketch8.addConstraint(Sketcher.Constraint("DistanceX", 1, 1, 1, 2, Q("1.458778 mm")))
sketch8.addConstraint(Sketcher.Constraint("DistanceX", 0, 2, 4, 3, Q("0.729389 mm")))
sketch8.addConstraint(Sketcher.Constraint("DistanceX", -1, 1, 4, 3, Q("24.150636 mm")))
sketch8.addConstraint(Sketcher.Constraint("DistanceY", 4, 3, -1, 1, Q("7.707653 mm")))
pad7 = body7.newObject("PartDesign::Pad", "Pad006")
pad7.Profile = sketch8
pad7.Length = 1
pad7.Reversed = True
body8 = doc.addObject("PartDesign::Body", "Body007")

# Sketch on XZ plane
sketch9 = body8.newObject("Sketcher::SketchObject", "Sketch008")
sketch9.AttachmentSupport = (doc.getObject("XZ_Plane007"), [""])
sketch9.MapMode = "FlatFace"
sketch9.addGeometry(Part.Circle(App.Vector(-29, -11.5, 0), App.Vector(0, 0, 1), 3), False)
sketch9.addGeometry(Part.Circle(App.Vector(-29, -11.5, 0), App.Vector(0, 0, 1), 1.4), False)
sketch9.addConstraint(Sketcher.Constraint("Coincident", 1, 3, 0, 3))
sketch9.addConstraint(Sketcher.Constraint("Diameter", 0, Q("6 mm")))
sketch9.addConstraint(Sketcher.Constraint("Diameter", 1, Q("2.75 mm")))
sketch9.addConstraint(Sketcher.Constraint("DistanceX", 0, 3, -1, 1, Q("29 mm")))
sketch9.addConstraint(Sketcher.Constraint("DistanceY", 0, 3, -1, 1, Q("11.5 mm")))
pad8 = body8.newObject("PartDesign::Pad", "Pad007")
pad8.Profile = sketch9
pad8.Length = 1
pad8.Reversed = True
body9 = doc.addObject("PartDesign::Body", "Body008")
doc.recompute()

mirroring = doc.addObject("Part::Mirroring", "Mirroring")
mirroring.Source = body8
mirroring.Base = App.Vector(0, 0, 0)
mirroring.Normal = App.Vector(1, 0, 0)
body9.BaseFeature = mirroring
doc.recompute()
body10 = doc.addObject("PartDesign::Body", "Body009")
doc.recompute()

mirroring2 = doc.addObject("Part::Mirroring", "Mirroring001")
mirroring2.Source = body8
mirroring2.Base = App.Vector(0, 0, 0)
mirroring2.Normal = App.Vector(0, 0, 1)
body10.BaseFeature = mirroring2
doc.recompute()
body11 = doc.addObject("PartDesign::Body", "Body010")
doc.recompute()

mirroring3 = doc.addObject("Part::Mirroring", "Mirroring002")
mirroring3.Source = body9
mirroring3.Base = App.Vector(0, 0, 0)
mirroring3.Normal = App.Vector(0, 0, 1)
body11.BaseFeature = mirroring3
doc.recompute()
mirroring.Visibility = False
mirroring2.Visibility = False
mirroring3.Visibility = False

doc.recompute()
